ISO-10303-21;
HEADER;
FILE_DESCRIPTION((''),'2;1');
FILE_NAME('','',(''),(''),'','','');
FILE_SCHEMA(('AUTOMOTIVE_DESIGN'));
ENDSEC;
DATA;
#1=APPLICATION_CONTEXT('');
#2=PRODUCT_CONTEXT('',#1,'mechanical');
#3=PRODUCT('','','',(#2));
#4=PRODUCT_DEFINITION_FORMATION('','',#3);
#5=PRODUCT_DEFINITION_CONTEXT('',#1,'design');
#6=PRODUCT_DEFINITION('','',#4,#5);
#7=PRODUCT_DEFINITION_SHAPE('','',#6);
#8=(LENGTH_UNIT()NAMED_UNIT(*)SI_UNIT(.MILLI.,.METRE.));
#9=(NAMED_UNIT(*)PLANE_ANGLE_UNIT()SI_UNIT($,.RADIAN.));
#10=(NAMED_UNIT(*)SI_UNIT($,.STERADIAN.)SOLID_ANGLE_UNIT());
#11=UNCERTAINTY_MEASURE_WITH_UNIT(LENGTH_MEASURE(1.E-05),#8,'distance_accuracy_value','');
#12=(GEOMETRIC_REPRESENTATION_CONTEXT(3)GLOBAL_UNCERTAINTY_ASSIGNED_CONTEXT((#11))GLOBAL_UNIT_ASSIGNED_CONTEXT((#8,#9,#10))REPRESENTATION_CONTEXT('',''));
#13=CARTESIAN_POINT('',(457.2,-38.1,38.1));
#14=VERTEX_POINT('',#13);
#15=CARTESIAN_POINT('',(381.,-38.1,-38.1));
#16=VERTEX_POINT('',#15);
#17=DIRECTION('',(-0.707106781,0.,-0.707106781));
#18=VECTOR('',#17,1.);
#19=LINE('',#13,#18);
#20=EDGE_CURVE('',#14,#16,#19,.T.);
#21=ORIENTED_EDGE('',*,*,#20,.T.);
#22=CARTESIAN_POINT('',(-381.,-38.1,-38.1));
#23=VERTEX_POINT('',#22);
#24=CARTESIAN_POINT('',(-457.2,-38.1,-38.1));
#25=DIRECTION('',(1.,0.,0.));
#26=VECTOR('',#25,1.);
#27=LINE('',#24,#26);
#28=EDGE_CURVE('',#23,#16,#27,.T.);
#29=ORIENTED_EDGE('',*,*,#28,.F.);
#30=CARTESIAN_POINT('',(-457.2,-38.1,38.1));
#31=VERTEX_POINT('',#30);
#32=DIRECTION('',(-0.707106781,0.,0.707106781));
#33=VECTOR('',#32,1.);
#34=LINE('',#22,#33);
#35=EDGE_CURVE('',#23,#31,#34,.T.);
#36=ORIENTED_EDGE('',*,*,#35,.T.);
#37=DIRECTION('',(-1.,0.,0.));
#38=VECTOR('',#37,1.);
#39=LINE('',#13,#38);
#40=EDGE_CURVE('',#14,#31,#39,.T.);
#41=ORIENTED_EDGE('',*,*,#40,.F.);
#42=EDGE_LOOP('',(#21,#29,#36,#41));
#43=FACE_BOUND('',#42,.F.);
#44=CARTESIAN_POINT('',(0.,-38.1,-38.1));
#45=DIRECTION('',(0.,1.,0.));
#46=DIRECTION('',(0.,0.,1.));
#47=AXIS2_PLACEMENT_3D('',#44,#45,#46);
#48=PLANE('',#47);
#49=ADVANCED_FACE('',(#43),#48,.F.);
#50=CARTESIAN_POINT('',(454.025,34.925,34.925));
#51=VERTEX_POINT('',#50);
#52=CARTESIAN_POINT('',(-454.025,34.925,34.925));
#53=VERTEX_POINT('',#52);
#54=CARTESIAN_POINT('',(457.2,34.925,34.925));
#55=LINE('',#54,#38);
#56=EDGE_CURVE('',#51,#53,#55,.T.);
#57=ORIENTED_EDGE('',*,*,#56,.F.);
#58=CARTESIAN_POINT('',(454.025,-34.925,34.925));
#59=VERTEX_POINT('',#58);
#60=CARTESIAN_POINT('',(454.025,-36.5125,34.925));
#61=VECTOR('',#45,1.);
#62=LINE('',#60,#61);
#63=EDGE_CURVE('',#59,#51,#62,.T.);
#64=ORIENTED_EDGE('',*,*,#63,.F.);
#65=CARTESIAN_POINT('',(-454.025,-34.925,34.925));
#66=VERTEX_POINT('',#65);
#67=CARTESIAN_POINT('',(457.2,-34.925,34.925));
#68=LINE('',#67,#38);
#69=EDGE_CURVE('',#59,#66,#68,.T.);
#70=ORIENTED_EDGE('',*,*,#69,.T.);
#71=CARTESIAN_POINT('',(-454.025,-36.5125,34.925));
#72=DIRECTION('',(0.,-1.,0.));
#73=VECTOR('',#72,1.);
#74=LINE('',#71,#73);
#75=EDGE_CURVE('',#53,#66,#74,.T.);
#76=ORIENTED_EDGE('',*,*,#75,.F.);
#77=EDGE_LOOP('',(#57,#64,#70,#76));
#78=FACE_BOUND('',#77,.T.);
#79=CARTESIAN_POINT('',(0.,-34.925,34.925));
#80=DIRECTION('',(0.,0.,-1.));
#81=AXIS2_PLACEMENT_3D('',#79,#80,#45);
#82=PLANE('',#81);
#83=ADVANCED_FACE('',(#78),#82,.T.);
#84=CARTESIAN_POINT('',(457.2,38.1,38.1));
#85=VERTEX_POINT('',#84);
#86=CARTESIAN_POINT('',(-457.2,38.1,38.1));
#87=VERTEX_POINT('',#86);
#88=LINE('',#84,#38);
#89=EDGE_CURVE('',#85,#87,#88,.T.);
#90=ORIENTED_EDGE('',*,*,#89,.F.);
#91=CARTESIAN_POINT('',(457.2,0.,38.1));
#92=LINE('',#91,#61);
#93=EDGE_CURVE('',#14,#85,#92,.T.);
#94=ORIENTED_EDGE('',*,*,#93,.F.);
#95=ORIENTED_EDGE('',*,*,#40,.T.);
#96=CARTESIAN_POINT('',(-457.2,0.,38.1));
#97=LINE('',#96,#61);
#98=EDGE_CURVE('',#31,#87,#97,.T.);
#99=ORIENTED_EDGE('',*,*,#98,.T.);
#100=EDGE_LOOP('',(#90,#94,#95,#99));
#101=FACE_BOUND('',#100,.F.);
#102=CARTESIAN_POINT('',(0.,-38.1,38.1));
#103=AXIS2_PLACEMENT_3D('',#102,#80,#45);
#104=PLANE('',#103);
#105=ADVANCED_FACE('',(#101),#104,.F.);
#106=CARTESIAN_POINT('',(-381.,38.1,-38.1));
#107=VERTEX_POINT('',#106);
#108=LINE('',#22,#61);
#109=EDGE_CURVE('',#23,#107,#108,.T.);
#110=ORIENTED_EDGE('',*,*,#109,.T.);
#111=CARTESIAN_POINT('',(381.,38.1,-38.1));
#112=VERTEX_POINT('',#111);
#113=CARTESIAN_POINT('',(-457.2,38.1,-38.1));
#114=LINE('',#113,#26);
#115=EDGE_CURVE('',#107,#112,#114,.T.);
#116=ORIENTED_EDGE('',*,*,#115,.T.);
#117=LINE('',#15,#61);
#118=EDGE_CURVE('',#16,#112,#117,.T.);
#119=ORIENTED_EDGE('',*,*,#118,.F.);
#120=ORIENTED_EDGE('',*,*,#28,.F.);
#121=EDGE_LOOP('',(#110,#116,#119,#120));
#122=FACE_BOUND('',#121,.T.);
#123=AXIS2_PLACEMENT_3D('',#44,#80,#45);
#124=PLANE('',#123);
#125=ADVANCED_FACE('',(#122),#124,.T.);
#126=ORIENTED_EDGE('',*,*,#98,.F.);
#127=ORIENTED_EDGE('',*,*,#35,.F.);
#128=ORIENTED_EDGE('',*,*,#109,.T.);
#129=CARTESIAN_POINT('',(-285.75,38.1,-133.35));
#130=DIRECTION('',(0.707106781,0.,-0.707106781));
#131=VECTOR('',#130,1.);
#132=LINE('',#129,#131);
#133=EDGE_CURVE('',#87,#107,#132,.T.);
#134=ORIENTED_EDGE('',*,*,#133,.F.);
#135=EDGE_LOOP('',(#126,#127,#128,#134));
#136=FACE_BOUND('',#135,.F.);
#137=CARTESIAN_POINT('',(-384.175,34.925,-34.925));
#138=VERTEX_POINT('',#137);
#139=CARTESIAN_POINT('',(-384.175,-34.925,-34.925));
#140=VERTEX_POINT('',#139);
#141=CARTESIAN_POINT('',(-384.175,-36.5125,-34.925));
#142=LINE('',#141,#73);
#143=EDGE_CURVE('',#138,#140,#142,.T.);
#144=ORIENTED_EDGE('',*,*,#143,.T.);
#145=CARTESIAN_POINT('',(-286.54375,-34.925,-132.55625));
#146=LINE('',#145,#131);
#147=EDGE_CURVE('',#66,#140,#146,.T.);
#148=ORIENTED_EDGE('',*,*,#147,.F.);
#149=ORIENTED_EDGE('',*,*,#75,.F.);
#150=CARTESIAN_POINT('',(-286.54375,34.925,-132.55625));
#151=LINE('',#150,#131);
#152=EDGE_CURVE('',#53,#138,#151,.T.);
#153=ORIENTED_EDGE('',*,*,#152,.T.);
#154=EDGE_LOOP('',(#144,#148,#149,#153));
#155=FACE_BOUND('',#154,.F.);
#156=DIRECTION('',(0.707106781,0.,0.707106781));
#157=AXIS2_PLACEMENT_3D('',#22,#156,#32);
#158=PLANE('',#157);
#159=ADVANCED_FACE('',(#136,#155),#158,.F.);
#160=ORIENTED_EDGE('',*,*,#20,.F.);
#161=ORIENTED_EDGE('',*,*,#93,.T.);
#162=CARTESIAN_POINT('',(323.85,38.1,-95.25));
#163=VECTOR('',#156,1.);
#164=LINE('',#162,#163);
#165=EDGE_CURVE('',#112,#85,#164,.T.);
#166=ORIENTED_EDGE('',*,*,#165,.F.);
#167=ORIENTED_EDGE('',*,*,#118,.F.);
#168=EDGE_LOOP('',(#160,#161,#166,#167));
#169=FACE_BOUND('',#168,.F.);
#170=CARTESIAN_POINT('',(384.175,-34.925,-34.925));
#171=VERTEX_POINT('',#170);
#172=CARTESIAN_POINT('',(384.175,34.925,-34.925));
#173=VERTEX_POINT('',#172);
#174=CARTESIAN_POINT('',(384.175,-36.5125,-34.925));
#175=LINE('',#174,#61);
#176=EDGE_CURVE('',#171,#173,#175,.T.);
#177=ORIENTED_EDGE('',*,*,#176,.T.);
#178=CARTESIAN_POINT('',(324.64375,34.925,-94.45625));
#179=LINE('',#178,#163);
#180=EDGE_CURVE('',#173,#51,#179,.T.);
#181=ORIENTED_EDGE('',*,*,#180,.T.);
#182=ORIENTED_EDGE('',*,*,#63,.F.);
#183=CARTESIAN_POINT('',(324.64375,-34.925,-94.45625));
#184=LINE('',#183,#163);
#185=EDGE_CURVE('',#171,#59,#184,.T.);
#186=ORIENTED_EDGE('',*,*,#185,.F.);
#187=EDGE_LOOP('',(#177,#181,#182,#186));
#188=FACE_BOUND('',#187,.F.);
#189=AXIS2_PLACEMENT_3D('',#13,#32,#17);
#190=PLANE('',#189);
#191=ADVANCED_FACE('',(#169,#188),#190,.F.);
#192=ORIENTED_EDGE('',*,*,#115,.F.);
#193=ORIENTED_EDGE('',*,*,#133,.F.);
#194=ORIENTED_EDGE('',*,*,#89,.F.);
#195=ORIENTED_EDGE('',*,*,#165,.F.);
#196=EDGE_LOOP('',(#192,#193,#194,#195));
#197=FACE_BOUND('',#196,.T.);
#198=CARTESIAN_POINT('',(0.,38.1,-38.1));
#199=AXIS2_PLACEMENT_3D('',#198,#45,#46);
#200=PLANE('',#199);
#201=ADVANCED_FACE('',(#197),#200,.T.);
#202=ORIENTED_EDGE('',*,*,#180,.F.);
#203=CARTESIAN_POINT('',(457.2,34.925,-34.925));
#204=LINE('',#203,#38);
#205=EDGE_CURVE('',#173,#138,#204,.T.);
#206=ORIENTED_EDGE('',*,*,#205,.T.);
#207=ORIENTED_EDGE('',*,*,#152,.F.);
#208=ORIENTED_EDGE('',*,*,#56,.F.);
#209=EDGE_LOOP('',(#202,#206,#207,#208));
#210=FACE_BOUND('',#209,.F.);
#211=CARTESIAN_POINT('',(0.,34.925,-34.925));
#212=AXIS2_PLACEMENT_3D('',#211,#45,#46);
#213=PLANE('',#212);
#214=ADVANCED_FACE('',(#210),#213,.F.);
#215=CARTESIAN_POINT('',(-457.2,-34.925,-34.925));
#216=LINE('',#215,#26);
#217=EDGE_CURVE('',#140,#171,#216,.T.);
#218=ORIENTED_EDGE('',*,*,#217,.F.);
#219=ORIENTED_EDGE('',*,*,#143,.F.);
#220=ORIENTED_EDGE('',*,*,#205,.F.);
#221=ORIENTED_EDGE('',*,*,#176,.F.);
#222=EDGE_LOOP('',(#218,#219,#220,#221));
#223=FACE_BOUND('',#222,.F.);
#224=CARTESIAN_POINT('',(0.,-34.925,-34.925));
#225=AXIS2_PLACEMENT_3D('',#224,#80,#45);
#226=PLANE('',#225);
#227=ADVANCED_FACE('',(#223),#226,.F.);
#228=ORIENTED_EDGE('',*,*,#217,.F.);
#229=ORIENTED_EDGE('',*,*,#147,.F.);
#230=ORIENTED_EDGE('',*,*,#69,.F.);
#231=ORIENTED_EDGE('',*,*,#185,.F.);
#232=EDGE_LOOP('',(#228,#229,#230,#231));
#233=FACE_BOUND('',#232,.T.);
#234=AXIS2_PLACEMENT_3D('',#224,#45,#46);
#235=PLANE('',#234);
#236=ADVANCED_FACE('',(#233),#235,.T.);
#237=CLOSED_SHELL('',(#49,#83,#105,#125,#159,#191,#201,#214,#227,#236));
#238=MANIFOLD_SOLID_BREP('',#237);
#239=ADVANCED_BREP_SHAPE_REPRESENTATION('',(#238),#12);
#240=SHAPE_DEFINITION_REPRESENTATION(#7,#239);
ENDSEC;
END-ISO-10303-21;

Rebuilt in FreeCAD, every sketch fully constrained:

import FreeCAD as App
import Part
import Sketcher

V = App.Vector
Q = App.Units.Quantity


def add_polygon(sketch, points):
    """Adds a closed chain of lines whose ends are joined by coincident constraints."""
    first, n = sketch.GeometryCount, len(points)
    for a, b in zip(points, points[1:] + points[:1]):
        sketch.addGeometry(Part.LineSegment(App.Vector(*a, 0), App.Vector(*b, 0)), False)
    for i in range(n):
        sketch.addConstraint(Sketcher.Constraint("Coincident", first + i, 2, first + (i + 1) % n, 1))

doc = App.newDocument("Part")
body = doc.addObject("PartDesign::Body", "Body")

sketch1 = doc.addObject("Sketcher::SketchObject", "Sketch")
body.addObject(sketch1)
sketch1.AttachmentSupport = (doc.YZ_Plane, [""])
sketch1.MapMode = "FlatFace"
add_polygon(sketch1, [(-38, 38), (-38, -38), (38, -38), (38, 38)])
add_polygon(sketch1, [(35, -35), (-35, -35), (-35, 35), (35, 35)])
sketch1.addConstraint([
    Sketcher.Constraint("Vertical", 0),
    Sketcher.Constraint("Horizontal", 1),
    Sketcher.Constraint("Vertical", 2),
    Sketcher.Constraint("Horizontal", 3),
    Sketcher.Constraint("Horizontal", 4),
    Sketcher.Constraint("Vertical", 5),
    Sketcher.Constraint("Horizontal", 6),
    Sketcher.Constraint("Vertical", 7),
    Sketcher.Constraint("Symmetric", 0, 2, 2, 2, -1, 1),
    Sketcher.Constraint("Symmetric", 4, 2, 6, 2, -1, 1),
    Sketcher.Constraint("Equal", 3, 0),
    Sketcher.Constraint("Equal", 6, 5),
    Sketcher.Constraint("DistanceX", 1, 1, 1, 2, Q("3 in")),
    Sketcher.Constraint("DistanceX", 4, 2, 4, 1, Q("2.75 in")),
])
pad1 = doc.addObject("PartDesign::Pad", "Pad")
body.addObject(pad1)
pad1.Profile = sketch1
pad1.Type = "TwoLengths"
pad1.Length = Q("18 in")
pad1.Length2 = Q("18 in")

sketch2 = doc.addObject("Sketcher::SketchObject", "Sketch001")
body.addObject(sketch2)
sketch2.AttachmentSupport = (doc.XZ_Plane, [""])
sketch2.MapMode = "FlatFace"
sketch2.AttachmentOffset = App.Placement(V(0, 0, 1.5 * 25.4), App.Rotation())
add_polygon(sketch2, [(-381, -38), (-457, 38), (-457, -38)])
add_polygon(sketch2, [(457, -38), (457, 38), (381, -38)])
sketch2.addConstraint([
    Sketcher.Constraint("Vertical", 1),
    Sketcher.Constraint("Horizontal", 2),
    Sketcher.Constraint("Vertical", 3),
    Sketcher.Constraint("Horizontal", 5),
    Sketcher.Constraint("Symmetric", 1, 2, 3, 2, -1, 1),
    Sketcher.Constraint("Symmetric", 2, 2, 4, 2, -2),
    Sketcher.Constraint("Perpendicular", 0, 4),
    Sketcher.Constraint("Horizontal", 0, 2, 3, 2),
    Sketcher.Constraint("DistanceX", 2, 1, 2, 2, Q("3 in")),
    Sketcher.Constraint("DistanceX", 0, 2, -1, 1, Q("18 in")),
])
pocket1 = doc.addObject("PartDesign::Pocket", "Pocket")
body.addObject(pocket1)
pocket1.Profile = sketch2
pocket1.Type = "ThroughAll"

doc.recompute()
